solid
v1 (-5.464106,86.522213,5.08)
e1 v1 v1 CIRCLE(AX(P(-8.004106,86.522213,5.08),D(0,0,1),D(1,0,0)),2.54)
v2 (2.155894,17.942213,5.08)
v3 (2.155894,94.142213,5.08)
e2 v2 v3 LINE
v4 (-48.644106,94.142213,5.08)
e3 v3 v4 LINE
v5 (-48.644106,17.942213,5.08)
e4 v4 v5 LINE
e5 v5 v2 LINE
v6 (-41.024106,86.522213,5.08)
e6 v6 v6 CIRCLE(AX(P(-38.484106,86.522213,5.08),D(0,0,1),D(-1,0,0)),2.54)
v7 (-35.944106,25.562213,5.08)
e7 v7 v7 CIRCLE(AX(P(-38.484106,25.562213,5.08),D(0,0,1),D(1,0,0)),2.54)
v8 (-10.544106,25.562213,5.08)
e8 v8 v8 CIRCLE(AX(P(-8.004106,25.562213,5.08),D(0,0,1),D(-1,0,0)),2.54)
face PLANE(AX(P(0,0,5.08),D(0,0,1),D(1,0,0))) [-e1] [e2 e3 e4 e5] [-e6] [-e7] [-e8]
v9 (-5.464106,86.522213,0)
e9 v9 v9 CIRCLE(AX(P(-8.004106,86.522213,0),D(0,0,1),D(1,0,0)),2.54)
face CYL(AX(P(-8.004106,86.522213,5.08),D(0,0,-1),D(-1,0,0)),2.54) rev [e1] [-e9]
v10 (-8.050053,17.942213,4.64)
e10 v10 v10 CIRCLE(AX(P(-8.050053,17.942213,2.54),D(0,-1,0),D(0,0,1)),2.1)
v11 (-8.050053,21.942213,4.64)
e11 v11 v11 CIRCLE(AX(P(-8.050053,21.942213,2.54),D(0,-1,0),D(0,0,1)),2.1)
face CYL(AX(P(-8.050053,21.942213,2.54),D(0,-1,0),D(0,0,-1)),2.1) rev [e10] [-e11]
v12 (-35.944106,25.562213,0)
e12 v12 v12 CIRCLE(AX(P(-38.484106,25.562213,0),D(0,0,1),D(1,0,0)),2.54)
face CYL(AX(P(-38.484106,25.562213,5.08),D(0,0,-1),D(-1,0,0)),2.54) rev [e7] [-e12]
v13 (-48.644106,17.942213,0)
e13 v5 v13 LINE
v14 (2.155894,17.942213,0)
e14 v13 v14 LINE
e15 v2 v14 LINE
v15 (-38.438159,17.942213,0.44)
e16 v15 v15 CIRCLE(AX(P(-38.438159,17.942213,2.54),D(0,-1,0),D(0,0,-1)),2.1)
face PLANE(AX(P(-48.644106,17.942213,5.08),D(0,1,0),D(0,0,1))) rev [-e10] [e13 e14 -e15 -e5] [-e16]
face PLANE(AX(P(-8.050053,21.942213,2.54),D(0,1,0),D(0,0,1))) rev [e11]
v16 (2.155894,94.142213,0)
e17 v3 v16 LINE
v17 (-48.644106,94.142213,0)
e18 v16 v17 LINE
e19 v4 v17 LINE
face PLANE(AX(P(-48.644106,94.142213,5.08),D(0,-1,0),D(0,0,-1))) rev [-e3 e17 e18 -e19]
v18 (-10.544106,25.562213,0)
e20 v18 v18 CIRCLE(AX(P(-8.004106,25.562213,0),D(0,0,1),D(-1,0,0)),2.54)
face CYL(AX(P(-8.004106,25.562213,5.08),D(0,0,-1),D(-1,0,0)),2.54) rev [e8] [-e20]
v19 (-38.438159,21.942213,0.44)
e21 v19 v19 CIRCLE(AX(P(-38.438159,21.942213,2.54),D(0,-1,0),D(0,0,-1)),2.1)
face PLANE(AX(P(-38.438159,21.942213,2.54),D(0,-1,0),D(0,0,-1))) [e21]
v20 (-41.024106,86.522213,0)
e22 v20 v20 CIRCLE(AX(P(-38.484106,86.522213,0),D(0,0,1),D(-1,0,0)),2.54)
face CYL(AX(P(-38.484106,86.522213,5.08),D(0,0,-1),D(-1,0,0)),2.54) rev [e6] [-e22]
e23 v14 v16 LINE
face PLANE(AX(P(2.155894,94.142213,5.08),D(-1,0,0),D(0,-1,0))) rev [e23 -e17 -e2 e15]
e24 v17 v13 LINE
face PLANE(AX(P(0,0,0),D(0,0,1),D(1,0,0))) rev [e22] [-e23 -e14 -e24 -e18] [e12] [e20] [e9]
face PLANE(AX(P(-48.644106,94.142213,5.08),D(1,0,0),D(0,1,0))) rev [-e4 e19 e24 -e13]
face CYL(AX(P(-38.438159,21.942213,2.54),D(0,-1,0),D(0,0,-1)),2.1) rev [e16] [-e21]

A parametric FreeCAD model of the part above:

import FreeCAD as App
import Part
import Sketcher

V = App.Vector
Q = App.Units.Quantity


def add_polygon(sketch, points):
    """Adds a closed chain of lines whose ends are joined by coincident constraints."""
    first, n = sketch.GeometryCount, len(points)
    for a, b in zip(points, points[1:] + points[:1]):
        sketch.addGeometry(Part.LineSegment(App.Vector(*a, 0), App.Vector(*b, 0)), False)
    for i in range(n):
        sketch.addConstraint(Sketcher.Constraint("Coincident", first + i, 2, first + (i + 1) % n, 1))

doc = App.newDocument("Part")
body = doc.addObject("PartDesign::Body", "Body")

# Sketch on XY plane
sketch1 = body.newObject("Sketcher::SketchObject", "Sketch")
sketch1.AttachmentSupport = (doc.getObject("XY_Plane"), [""])
sketch1.MapMode = "FlatFace"
add_polygon(sketch1, [(-48.6, 94.1), (-48.6, 17.9), (2.2, 17.9), (2.2, 94.1)])  # lines 0-3
sketch1.addGeometry(Part.Circle(V(-38.5, 25.6, 0), V(0, 0, 1), 2.5), False)  # 4
sketch1.addGeometry(Part.Circle(V(-8, 25.6, 0), V(0, 0, 1), 2.5), False)  # 5
sketch1.addGeometry(Part.Circle(V(-38.5, 86.5, 0), V(0, 0, 1), 2.5), False)  # 6
sketch1.addGeometry(Part.Circle(V(-8, 86.5, 0), V(0, 0, 1), 2.5), False)  # 7
sketch1.addConstraint(Sketcher.Constraint("Vertical", 0))
sketch1.addConstraint(Sketcher.Constraint("Horizontal", 1))
sketch1.addConstraint(Sketcher.Constraint("Vertical", 2))
sketch1.addConstraint(Sketcher.Constraint("Horizontal", 3))
sketch1.addConstraint(Sketcher.Constraint("Equal", 4, 5))
sketch1.addConstraint(Sketcher.Constraint("Equal", 5, 6))
sketch1.addConstraint(Sketcher.Constraint("Equal", 6, 7))
sketch1.addConstraint(Sketcher.Constraint("Horizontal", 4, 3, 5, 3))
sketch1.addConstraint(Sketcher.Constraint("Horizontal", 6, 3, 7, 3))
sketch1.addConstraint(Sketcher.Constraint("Vertical", 4, 3, 6, 3))
sketch1.addConstraint(Sketcher.Constraint("Vertical", 5, 3, 7, 3))
sketch1.addConstraint(Sketcher.Constraint("Diameter", 4, Q("0.2 in")))
sketch1.addConstraint(Sketcher.Constraint("DistanceX", 1, 1, 1, 2, Q("2 in")))
sketch1.addConstraint(Sketcher.Constraint("DistanceY", 0, 2, 0, 1, Q("3 in")))
sketch1.addConstraint(Sketcher.Constraint("DistanceX", 4, 3, 5, 3, Q("1.2 in")))
sketch1.addConstraint(Sketcher.Constraint("DistanceY", 4, 3, 6, 3, Q("2.4 in")))
sketch1.addConstraint(Sketcher.Constraint("DistanceX", 0, 2, 4, 3, Q("0.4 in")))
sketch1.addConstraint(Sketcher.Constraint("DistanceY", 0, 2, 4, 3, Q("0.3 in")))
sketch1.addConstraint(Sketcher.Constraint("DistanceX", 4, 3, -1, 1, Q("38.484106 mm")))
sketch1.addConstraint(Sketcher.Constraint("DistanceY", -1, 1, 4, 3, Q("25.562213 mm")))
pad1 = body.newObject("PartDesign::Pad", "Pad")
pad1.Profile = sketch1
pad1.Length = Q("0.2 in")

# Sketch on XZ plane
sketch2 = body.newObject("Sketcher::SketchObject", "Sketch001")
sketch2.AttachmentSupport = (doc.getObject("XZ_Plane"), [""])
sketch2.MapMode = "FlatFace"
sketch2.AttachmentOffset = App.Placement(V(0, 0, -17.942213), App.Rotation())
sketch2.addGeometry(Part.Circle(V(-38.4, 2.5, 0), V(0, 0, 1), 2.1), False)
sketch2.addGeometry(Part.Circle(V(-8.1, 2.5, 0), V(0, 0, 1), 2.1), False)
sketch2.addConstraint(Sketcher.Constraint("Equal", 0, 1))
sketch2.addConstraint(Sketcher.Constraint("Horizontal", 0, 3, 1, 3))
sketch2.addConstraint(Sketcher.Constraint("DistanceY", -1, 1, 0, 3, Q("0.1 in")))
sketch2.addConstraint(Sketcher.Constraint("Diameter", 0, Q("4.2 mm")))
sketch2.addConstraint(Sketcher.Constraint("DistanceX", 0, 3, -1, 1, Q("38.438159 mm")))
sketch2.addConstraint(Sketcher.Constraint("DistanceX", 1, 3, -1, 1, Q("8.050053 mm")))
pocket1 = body.newObject("PartDesign::Pocket", "Pocket")
pocket1.Profile = sketch2
pocket1.Length = 4

doc.recompute()
